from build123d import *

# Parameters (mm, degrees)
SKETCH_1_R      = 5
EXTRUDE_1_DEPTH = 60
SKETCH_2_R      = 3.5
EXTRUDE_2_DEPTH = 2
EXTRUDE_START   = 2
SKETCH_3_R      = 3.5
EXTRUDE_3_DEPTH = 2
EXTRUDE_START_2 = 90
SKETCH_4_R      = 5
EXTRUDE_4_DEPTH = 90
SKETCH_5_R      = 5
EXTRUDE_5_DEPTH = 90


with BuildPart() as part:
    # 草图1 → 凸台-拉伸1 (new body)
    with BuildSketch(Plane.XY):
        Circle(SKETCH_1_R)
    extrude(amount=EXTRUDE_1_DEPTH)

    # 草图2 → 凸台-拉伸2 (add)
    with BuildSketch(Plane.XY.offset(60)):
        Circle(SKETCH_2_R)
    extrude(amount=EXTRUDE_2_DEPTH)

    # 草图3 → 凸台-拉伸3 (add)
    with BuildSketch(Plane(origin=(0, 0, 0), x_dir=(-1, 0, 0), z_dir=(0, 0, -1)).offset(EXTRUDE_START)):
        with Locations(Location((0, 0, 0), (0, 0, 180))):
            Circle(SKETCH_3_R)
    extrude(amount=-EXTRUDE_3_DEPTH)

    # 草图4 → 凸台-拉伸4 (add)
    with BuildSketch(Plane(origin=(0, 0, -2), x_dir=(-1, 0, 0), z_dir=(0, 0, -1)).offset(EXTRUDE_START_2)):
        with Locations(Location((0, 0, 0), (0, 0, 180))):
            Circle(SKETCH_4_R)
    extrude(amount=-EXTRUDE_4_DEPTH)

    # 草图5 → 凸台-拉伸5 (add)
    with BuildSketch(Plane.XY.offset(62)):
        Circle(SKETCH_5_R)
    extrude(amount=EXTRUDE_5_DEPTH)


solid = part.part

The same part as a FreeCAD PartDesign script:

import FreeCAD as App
import Part
import Sketcher

V = App.Vector

doc = App.newDocument("Part")
params = doc.addObject("Spreadsheet::Sheet", "Params")
for row, (alias, value) in enumerate([
    ("sketch1_diameter", "10 mm"),
    ("pad1_length", "60 mm"),
    ("sketch2_diameter", "7 mm"),
    ("pad2_length", "2 mm"),
    ("sketch3_diameter", "7 mm"),
    ("pad3_length", "2 mm"),
    ("sketch4_diameter", "10 mm"),
    ("pad4_length", "90 mm"),
    ("sketch5_diameter", "10 mm"),
    ("pad5_length", "90 mm"),
], start=1):
    params.set(f"A{row}", alias)
    params.set(f"B{row}", "=" + value)
    params.setAlias(f"B{row}", alias)

body = doc.addObject("PartDesign::Body", "Body")

# Sketch on XY plane
sketch1 = body.newObject("Sketcher::SketchObject", "Sketch")
sketch1.AttachmentSupport = (doc.getObject("XY_Plane"), [""])
sketch1.MapMode = "FlatFace"
sketch1.addGeometry(Part.Circle(V(0, 0, 0), V(0, 0, 1), 5), False)
sketch1.addConstraint(Sketcher.Constraint("Coincident", 0, 3, -1, 1))
sketch1.addConstraint(Sketcher.Constraint("Diameter", 0, 10.0))
sketch1.setExpression("Constraints[1]", "Params.sketch1_diameter")
pad1 = body.newObject("PartDesign::Pad", "Pad")
pad1.Profile = sketch1
pad1.setExpression("Length", "Params.pad1_length")

# Sketch on XY plane
sketch2 = body.newObject("Sketcher::SketchObject", "Sketch001")
sketch2.AttachmentSupport = (doc.getObject("XY_Plane"), [""])
sketch2.MapMode = "FlatFace"
sketch2.AttachmentOffset = App.Placement(V(0, 0, 60), App.Rotation())
sketch2.addGeometry(Part.Circle(V(0, 0, 0), V(0, 0, 1), 3.5), False)
sketch2.addConstraint(Sketcher.Constraint("Coincident", 0, 3, -1, 1))
sketch2.addConstraint(Sketcher.Constraint("Diameter", 0, 7.0))
sketch2.setExpression("Constraints[1]", "Params.sketch2_diameter")
pad2 = body.newObject("PartDesign::Pad", "Pad001")
pad2.Profile = sketch2
pad2.setExpression("Length", "Params.pad2_length")

# Sketch on XY plane
sketch3 = body.newObject("Sketcher::SketchObject", "Sketch002")
sketch3.AttachmentSupport = (doc.getObject("XY_Plane"), [""])
sketch3.MapMode = "FlatFace"
sketch3.AttachmentOffset = App.Placement(V(0, 0, -2), App.Rotation())
sketch3.addGeometry(Part.Circle(V(0, 0, 0), V(0, 0, 1), 3.5), False)
sketch3.addConstraint(Sketcher.Constraint("Coincident", 0, 3, -1, 1))
sketch3.addConstraint(Sketcher.Constraint("Diameter", 0, 7.0))
sketch3.setExpression("Constraints[1]", "Params.sketch3_diameter")
pad3 = body.newObject("PartDesign::Pad", "Pad002")
pad3.Profile = sketch3
pad3.setExpression("Length", "Params.pad3_length")

# Sketch on XY plane
sketch4 = body.newObject("Sketcher::SketchObject", "Sketch003")
sketch4.AttachmentSupport = (doc.getObject("XY_Plane"), [""])
sketch4.MapMode = "FlatFace"
sketch4.AttachmentOffset = App.Placement(V(0, 0, -92), App.Rotation())
sketch4.addGeometry(Part.Circle(V(0, 0, 0), V(0, 0, 1), 5), False)
sketch4.addConstraint(Sketcher.Constraint("Coincident", 0, 3, -1, 1))
sketch4.addConstraint(Sketcher.Constraint("Diameter", 0, 10.0))
sketch4.setExpression("Constraints[1]", "Params.sketch4_diameter")
pad4 = body.newObject("PartDesign::Pad", "Pad003")
pad4.Profile = sketch4
pad4.setExpression("Length", "Params.pad4_length")

# Sketch on XY plane
sketch5 = body.newObject("Sketcher::SketchObject", "Sketch004")
sketch5.AttachmentSupport = (doc.getObject("XY_Plane"), [""])
sketch5.MapMode = "FlatFace"
sketch5.AttachmentOffset = App.Placement(V(0, 0, 62), App.Rotation())
sketch5.addGeometry(Part.Circle(V(0, 0, 0), V(0, 0, 1), 5), False)
sketch5.addConstraint(Sketcher.Constraint("Coincident", 0, 3, -1, 1))
sketch5.addConstraint(Sketcher.Constraint("Diameter", 0, 10.0))
sketch5.setExpression("Constraints[1]", "Params.sketch5_diameter")
pad5 = body.newObject("PartDesign::Pad", "Pad004")
pad5.Profile = sketch5
pad5.setExpression("Length", "Params.pad5_length")

doc.recompute()
